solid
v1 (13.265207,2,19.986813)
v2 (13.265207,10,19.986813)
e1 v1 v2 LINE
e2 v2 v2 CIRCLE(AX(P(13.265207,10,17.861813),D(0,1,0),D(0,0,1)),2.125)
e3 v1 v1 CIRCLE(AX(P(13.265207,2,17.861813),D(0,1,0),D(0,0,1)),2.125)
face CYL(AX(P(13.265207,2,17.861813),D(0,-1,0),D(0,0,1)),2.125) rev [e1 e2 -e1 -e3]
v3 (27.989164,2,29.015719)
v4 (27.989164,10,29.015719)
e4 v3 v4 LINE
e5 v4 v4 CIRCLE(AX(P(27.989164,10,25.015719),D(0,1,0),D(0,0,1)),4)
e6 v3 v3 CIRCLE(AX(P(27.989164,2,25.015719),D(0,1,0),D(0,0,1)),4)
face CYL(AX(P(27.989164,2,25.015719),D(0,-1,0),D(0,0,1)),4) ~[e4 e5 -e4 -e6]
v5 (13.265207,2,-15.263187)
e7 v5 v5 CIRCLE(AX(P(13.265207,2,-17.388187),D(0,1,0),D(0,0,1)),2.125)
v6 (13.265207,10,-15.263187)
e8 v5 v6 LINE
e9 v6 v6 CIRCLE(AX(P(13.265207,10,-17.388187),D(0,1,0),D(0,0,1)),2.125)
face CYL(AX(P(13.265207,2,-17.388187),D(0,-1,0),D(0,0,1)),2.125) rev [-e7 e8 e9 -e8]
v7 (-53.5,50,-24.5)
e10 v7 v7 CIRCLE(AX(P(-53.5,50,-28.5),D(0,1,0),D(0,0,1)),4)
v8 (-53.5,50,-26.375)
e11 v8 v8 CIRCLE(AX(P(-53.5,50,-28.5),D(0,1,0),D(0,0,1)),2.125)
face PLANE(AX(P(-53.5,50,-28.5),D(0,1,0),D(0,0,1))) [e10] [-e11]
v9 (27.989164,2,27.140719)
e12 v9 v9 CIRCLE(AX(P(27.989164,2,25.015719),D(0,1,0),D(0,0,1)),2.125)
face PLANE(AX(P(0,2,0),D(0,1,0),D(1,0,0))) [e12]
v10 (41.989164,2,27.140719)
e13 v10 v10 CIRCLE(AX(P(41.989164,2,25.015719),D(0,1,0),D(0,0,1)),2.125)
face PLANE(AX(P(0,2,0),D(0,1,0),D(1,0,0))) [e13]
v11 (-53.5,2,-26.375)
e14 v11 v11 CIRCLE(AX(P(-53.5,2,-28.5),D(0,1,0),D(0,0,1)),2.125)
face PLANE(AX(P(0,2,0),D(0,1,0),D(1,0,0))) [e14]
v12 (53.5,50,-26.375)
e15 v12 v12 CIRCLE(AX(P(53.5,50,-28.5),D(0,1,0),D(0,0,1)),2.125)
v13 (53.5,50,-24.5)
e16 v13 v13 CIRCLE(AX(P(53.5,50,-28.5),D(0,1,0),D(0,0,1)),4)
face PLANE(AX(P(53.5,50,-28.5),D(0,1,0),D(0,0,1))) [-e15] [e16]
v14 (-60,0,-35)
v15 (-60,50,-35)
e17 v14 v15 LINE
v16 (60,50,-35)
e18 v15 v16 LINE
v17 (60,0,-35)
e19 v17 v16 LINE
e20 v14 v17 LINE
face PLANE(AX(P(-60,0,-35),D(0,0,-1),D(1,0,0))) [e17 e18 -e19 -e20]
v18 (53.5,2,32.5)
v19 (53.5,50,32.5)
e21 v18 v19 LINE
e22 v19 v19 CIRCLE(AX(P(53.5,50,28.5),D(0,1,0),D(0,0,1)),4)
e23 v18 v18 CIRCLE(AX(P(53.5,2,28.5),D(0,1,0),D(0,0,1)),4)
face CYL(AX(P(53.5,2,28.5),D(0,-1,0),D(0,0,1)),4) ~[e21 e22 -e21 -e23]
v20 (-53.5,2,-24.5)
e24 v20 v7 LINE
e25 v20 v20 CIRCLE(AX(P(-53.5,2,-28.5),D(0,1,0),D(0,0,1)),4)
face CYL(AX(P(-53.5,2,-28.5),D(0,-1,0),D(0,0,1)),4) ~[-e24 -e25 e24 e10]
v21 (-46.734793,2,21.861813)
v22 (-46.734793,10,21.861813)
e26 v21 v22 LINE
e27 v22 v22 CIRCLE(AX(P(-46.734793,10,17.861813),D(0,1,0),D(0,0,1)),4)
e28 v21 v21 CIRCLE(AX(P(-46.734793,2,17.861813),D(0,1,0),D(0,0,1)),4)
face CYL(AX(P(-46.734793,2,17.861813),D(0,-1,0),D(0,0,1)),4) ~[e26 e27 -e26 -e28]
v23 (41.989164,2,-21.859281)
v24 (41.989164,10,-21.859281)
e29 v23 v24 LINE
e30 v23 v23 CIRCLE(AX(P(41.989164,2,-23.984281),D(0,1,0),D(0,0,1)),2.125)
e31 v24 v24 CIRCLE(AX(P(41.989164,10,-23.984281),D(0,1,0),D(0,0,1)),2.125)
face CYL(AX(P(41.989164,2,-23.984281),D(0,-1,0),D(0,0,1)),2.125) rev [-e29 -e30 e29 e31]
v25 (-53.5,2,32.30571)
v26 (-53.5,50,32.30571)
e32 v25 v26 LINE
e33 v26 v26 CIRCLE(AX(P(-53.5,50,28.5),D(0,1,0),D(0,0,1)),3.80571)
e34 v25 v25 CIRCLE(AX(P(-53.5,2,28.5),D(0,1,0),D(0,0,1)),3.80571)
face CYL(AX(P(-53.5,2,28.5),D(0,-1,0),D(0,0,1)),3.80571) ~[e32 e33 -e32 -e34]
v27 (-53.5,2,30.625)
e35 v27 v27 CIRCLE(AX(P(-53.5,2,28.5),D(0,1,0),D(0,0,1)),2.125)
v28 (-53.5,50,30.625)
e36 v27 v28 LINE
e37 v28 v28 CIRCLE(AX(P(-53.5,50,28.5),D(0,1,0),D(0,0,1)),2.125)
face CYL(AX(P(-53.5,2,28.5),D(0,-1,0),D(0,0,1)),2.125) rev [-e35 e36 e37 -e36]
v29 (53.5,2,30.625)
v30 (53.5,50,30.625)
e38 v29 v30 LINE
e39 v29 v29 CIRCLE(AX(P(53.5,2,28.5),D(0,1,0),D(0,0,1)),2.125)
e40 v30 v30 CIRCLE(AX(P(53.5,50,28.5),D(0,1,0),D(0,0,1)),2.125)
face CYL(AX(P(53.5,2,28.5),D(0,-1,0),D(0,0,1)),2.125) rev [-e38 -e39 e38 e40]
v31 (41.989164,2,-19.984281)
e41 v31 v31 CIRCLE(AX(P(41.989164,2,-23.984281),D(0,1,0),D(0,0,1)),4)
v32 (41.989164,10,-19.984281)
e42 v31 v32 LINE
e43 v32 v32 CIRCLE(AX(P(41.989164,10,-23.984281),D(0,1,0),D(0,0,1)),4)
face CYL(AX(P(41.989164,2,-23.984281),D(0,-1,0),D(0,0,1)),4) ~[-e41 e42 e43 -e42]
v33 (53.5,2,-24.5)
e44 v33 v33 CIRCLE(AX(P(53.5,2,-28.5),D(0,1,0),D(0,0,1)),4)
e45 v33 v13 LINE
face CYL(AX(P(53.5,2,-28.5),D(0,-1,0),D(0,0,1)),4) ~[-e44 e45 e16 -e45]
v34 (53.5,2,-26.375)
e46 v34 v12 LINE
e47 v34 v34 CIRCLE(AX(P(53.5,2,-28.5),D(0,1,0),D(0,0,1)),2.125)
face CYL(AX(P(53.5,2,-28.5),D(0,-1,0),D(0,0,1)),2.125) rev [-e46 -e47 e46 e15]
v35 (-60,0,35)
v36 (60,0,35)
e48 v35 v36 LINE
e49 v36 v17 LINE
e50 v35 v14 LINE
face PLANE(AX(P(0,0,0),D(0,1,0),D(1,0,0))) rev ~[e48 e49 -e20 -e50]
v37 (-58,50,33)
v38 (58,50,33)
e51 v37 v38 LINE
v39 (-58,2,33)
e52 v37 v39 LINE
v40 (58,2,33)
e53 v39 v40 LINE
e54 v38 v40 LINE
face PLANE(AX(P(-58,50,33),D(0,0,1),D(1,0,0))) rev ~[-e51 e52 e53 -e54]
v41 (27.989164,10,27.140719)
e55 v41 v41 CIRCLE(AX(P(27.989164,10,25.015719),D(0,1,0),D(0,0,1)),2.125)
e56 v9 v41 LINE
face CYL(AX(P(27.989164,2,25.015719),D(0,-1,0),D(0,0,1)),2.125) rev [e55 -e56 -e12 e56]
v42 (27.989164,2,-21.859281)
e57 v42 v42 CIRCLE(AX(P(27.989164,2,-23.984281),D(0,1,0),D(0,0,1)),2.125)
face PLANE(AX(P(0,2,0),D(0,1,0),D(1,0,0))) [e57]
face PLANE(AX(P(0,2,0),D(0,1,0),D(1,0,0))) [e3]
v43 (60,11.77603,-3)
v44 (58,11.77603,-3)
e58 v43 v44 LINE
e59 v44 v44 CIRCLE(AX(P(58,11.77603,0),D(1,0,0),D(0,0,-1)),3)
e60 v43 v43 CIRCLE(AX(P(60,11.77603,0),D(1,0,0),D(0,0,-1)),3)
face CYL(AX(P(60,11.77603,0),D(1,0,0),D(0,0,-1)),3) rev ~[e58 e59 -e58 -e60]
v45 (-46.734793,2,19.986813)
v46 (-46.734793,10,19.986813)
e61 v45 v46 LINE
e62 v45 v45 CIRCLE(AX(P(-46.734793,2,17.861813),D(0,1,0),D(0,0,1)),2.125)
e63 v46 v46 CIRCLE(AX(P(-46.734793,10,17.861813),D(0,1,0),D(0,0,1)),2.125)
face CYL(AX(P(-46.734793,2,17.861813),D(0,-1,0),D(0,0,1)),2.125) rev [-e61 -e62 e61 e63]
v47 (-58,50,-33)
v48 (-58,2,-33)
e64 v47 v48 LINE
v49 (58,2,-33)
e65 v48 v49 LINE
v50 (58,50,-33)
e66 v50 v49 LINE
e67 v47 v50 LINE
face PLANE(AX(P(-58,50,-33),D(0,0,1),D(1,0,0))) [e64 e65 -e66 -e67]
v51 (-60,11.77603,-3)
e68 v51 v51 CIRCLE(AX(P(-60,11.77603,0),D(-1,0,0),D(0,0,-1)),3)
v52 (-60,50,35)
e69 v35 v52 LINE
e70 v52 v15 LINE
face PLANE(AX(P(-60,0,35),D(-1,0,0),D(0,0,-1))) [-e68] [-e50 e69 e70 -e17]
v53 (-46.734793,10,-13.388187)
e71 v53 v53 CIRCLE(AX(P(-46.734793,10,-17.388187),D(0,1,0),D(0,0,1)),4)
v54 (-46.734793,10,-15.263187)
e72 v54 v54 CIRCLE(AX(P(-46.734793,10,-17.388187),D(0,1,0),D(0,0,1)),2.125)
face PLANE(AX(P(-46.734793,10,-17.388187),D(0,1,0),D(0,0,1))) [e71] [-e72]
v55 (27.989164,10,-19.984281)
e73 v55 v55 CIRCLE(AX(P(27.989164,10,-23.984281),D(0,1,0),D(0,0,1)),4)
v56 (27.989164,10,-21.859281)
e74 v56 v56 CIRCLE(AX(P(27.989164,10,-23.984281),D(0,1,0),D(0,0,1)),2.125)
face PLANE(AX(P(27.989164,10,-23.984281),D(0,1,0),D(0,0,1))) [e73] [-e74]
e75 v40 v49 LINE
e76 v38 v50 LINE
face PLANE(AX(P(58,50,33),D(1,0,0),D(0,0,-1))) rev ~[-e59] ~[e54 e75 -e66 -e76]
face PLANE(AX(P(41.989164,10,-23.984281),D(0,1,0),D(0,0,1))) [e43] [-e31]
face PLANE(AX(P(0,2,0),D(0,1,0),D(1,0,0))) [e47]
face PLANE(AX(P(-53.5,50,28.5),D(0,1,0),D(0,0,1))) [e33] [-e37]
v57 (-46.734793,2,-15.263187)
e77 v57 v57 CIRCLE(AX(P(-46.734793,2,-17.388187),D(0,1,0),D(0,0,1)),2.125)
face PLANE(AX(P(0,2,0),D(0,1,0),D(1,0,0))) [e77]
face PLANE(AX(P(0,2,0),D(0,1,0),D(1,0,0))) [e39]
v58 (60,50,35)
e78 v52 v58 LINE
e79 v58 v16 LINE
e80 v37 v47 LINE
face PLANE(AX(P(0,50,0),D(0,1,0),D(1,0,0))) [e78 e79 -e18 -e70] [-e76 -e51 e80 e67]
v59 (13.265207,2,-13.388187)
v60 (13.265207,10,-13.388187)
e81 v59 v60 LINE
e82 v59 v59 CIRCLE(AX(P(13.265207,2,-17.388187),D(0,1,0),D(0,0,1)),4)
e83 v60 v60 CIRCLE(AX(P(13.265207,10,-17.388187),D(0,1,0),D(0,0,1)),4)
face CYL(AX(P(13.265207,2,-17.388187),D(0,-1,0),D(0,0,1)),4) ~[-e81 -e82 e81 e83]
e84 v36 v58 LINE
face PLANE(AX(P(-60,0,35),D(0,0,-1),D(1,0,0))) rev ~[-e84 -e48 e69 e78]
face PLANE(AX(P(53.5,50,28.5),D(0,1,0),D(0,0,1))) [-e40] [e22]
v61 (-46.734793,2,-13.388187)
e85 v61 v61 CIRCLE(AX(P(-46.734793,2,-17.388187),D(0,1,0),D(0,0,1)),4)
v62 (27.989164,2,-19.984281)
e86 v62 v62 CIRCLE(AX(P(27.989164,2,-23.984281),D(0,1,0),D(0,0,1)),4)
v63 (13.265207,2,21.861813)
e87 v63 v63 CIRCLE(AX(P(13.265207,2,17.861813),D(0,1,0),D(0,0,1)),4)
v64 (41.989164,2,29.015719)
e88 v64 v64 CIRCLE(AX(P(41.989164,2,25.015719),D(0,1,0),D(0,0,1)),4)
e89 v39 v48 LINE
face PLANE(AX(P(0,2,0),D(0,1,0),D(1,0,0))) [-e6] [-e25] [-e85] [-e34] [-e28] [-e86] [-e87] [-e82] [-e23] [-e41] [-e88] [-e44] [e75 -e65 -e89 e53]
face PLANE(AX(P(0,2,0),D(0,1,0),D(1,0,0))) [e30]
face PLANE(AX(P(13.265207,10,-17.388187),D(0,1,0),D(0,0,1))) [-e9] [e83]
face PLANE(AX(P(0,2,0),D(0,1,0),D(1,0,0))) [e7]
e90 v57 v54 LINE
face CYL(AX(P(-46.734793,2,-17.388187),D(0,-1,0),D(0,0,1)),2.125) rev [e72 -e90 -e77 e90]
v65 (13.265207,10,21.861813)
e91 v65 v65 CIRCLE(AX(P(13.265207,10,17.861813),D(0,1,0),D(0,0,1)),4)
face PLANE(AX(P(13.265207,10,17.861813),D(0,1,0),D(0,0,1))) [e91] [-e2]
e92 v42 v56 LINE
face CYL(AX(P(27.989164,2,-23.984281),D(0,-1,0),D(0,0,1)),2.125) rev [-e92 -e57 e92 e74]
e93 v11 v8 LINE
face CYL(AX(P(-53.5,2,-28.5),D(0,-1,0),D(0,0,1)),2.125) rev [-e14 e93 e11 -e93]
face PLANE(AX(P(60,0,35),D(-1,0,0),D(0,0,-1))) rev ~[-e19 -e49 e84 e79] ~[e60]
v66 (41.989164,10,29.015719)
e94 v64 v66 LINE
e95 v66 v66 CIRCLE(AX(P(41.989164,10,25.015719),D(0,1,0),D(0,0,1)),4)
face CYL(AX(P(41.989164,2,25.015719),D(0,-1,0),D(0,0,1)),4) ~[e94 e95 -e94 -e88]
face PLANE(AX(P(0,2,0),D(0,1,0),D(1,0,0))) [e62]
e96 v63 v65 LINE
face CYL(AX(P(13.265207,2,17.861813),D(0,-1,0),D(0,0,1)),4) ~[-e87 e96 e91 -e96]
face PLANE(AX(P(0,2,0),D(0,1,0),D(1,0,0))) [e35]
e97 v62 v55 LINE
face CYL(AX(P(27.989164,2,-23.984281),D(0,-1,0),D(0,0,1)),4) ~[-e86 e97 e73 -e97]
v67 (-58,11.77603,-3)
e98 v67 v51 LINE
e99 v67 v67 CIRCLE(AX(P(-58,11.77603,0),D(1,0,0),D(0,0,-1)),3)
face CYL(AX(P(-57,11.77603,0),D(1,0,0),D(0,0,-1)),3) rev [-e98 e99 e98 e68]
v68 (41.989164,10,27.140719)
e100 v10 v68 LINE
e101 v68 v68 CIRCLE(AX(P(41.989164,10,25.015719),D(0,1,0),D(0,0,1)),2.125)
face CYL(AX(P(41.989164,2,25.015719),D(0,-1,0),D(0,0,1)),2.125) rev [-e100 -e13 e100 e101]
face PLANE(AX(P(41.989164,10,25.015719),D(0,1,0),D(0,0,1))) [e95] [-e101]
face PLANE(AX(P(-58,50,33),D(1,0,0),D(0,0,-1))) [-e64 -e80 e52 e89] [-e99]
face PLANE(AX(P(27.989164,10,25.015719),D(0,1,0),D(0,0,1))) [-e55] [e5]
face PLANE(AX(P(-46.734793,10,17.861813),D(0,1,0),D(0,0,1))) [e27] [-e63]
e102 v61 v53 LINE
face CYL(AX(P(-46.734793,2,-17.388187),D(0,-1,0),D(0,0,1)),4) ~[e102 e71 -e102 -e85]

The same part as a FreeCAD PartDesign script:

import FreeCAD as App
import Part
import Sketcher
from FreeCAD import Vector
Q = App.Units.Quantity

doc = App.newDocument("Part")
body = doc.addObject("PartDesign::Body", "Body")

sketch1 = body.newObject("Sketcher::SketchObject", "Sketch")
sketch1.AttachmentSupport = (doc.getObject("XZ_Plane"), [""])
sketch1.MapMode = "FlatFace"
sketch1.addGeometry([
    Part.LineSegment(Vector(-60, -35, 0), Vector(-60, 35, 0)),
    Part.LineSegment(Vector(-60, 35, 0), Vector(60, 35, 0)),
    Part.LineSegment(Vector(60, 35, 0), Vector(60, -35, 0)),
    Part.LineSegment(Vector(60, -35, 0), Vector(-60, -35, 0)),
], False)
sketch1.addConstraint([
    Sketcher.Constraint("Coincident", 0, 2, 1, 1),
    Sketcher.Constraint("Coincident", 1, 2, 2, 1),
    Sketcher.Constraint("Coincident", 2, 2, 3, 1),
    Sketcher.Constraint("Coincident", 3, 2, 0, 1),
    Sketcher.Constraint("Vertical", 0),
    Sketcher.Constraint("Horizontal", 1),
    Sketcher.Constraint("Vertical", 2),
    Sketcher.Constraint("Horizontal", 3),
    Sketcher.Constraint("Symmetric", 0, 2, 2, 2, -1, 1),
    Sketcher.Constraint("DistanceX", 1, 1, 1, 2, Q("120 mm")),
    Sketcher.Constraint("DistanceY", 0, 1, 0, 2, Q("70 mm")),
])
pad1 = body.newObject("PartDesign::Pad", "Pad")
pad1.Profile = sketch1
pad1.Length = 50
pad1.Reversed = True

sketch2 = body.newObject("Sketcher::SketchObject", "Sketch001")
sketch2.AttachmentSupport = (doc.getObject("XZ_Plane"), [""])
sketch2.MapMode = "FlatFace"
sketch2.AttachmentOffset = App.Placement(Vector(0, 0, -50), App.Rotation())
sketch2.addGeometry([
    Part.LineSegment(Vector(-58, -33, 0), Vector(-58, 33, 0)),
    Part.LineSegment(Vector(-58, 33, 0), Vector(58, 33, 0)),
    Part.LineSegment(Vector(58, 33, 0), Vector(58, -33, 0)),
    Part.LineSegment(Vector(58, -33, 0), Vector(-58, -33, 0)),
], False)
sketch2.addConstraint([
    Sketcher.Constraint("Coincident", 0, 2, 1, 1),
    Sketcher.Constraint("Coincident", 1, 2, 2, 1),
    Sketcher.Constraint("Coincident", 2, 2, 3, 1),
    Sketcher.Constraint("Coincident", 3, 2, 0, 1),
    Sketcher.Constraint("Vertical", 0),
    Sketcher.Constraint("Horizontal", 1),
    Sketcher.Constraint("Vertical", 2),
    Sketcher.Constraint("Horizontal", 3),
    Sketcher.Constraint("Symmetric", 0, 2, 2, 2, -1, 1),
    Sketcher.Constraint("DistanceX", 1, 1, 1, 2, Q("116 mm")),
    Sketcher.Constraint("DistanceY", 0, 1, 0, 2, Q("66 mm")),
])
pocket1 = body.newObject("PartDesign::Pocket", "Pocket")
pocket1.Profile = sketch2
pocket1.Length = 48
pocket1.Reversed = True

sketch3 = body.newObject("Sketcher::SketchObject", "Sketch002")
sketch3.AttachmentSupport = (doc.getObject("XZ_Plane"), [""])
sketch3.MapMode = "FlatFace"
sketch3.AttachmentOffset = App.Placement(Vector(0, 0, -2), App.Rotation())
sketch3.addGeometry([
    Part.Circle(Vector(-53.5, -28.5, 0), Vector(0, 0, 1), 4),
    Part.Circle(Vector(-53.5, -28.5, 0), Vector(0, 0, 1), 2.1),
    Part.Circle(Vector(-53.5, 28.5, 0), Vector(0, 0, 1), 3.8),
    Part.Circle(Vector(-53.5, 28.5, 0), Vector(0, 0, 1), 2.1),
    Part.Circle(Vector(53.5, 28.5, 0), Vector(0, 0, 1), 4),
    Part.Circle(Vector(53.5, 28.5, 0), Vector(0, 0, 1), 2.1),
    Part.Circle(Vector(53.5, -28.5, 0), Vector(0, 0, 1), 4),
    Part.Circle(Vector(53.5, -28.5, 0), Vector(0, 0, 1), 2.1),
], False)
sketch3.addConstraint([
    Sketcher.Constraint("Coincident", 1, 3, 0, 3),
    Sketcher.Constraint("Coincident", 3, 3, 2, 3),
    Sketcher.Constraint("Coincident", 5, 3, 4, 3),
    Sketcher.Constraint("Coincident", 7, 3, 6, 3),
    Sketcher.Constraint("Equal", 1, 3),
    Sketcher.Constraint("Equal", 0, 4),
    Sketcher.Constraint("Equal", 3, 5),
    Sketcher.Constraint("Equal", 4, 6),
    Sketcher.Constraint("Equal", 5, 7),
    Sketcher.Constraint("Symmetric", 0, 3, 4, 3, -1, 1),
    Sketcher.Constraint("Symmetric", 2, 3, 6, 3, -1, 1),
    Sketcher.Constraint("Symmetric", 2, 3, 4, 3, -2),
    Sketcher.Constraint("Diameter", 0, Q("8 mm")),
    Sketcher.Constraint("Diameter", 1, Q("4.25 mm")),
    Sketcher.Constraint("DistanceY", 0, 3, 2, 3, Q("57 mm")),
    Sketcher.Constraint("DistanceX", 2, 3, 4, 3, Q("107 mm")),
    Sketcher.Constraint("Diameter", 2, Q("7.611421 mm")),
])
pad2 = body.newObject("PartDesign::Pad", "Pad001")
pad2.Profile = sketch3
pad2.Length = 48
pad2.Reversed = True

sketch4 = body.newObject("Sketcher::SketchObject", "Sketch003")
sketch4.AttachmentSupport = (doc.getObject("XZ_Plane"), [""])
sketch4.MapMode = "FlatFace"
sketch4.AttachmentOffset = App.Placement(Vector(0, 0, -2), App.Rotation())
sketch4.addGeometry([
    Part.Circle(Vector(42, -24, 0), Vector(0, 0, 1), 4),
    Part.Circle(Vector(42, -24, 0), Vector(0, 0, 1), 2.1),
    Part.Circle(Vector(28, -24, 0), Vector(0, 0, 1), 4),
    Part.Circle(Vector(28, -24, 0), Vector(0, 0, 1), 2.1),
    Part.Circle(Vector(28, 25, 0), Vector(0, 0, 1), 4),
    Part.Circle(Vector(28, 25, 0), Vector(0, 0, 1), 2.1),
    Part.Circle(Vector(42, 25, 0), Vector(0, 0, 1), 4),
    Part.Circle(Vector(42, 25, 0), Vector(0, 0, 1), 2.1),
    Part.Circle(Vector(13.3, 17.9, 0), Vector(0, 0, 1), 4),
    Part.Circle(Vector(13.3, 17.9, 0), Vector(0, 0, 1), 2.1),
    Part.Circle(Vector(13.3, -17.4, 0), Vector(0, 0, 1), 4),
    Part.Circle(Vector(13.3, -17.4, 0), Vector(0, 0, 1), 2.1),
    Part.Circle(Vector(-46.7, -17.4, 0), Vector(0, 0, 1), 4),
    Part.Circle(Vector(-46.7, -17.4, 0), Vector(0, 0, 1), 2.1),
    Part.Circle(Vector(-46.7, 17.9, 0), Vector(0, 0, 1), 4),
    Part.Circle(Vector(-46.7, 17.9, 0), Vector(0, 0, 1), 2.1),
], False)
sketch4.addConstraint([
    Sketcher.Constraint("Coincident", 1, 3, 0, 3),
    Sketcher.Constraint("Coincident", 3, 3, 2, 3),
    Sketcher.Constraint("Coincident", 5, 3, 4, 3),
    Sketcher.Constraint("Coincident", 7, 3, 6, 3),
    Sketcher.Constraint("Coincident", 9, 3, 8, 3),
    Sketcher.Constraint("Coincident", 11, 3, 10, 3),
    Sketcher.Constraint("Coincident", 13, 3, 12, 3),
    Sketcher.Constraint("Coincident", 15, 3, 14, 3),
    Sketcher.Constraint("Equal", 0, 2),
    Sketcher.Constraint("Equal", 1, 3),
    Sketcher.Constraint("Equal", 2, 4),
    Sketcher.Constraint("Equal", 3, 5),
    Sketcher.Constraint("Equal", 4, 6),
    Sketcher.Constraint("Equal", 5, 7),
    Sketcher.Constraint("Equal", 6, 8),
    Sketcher.Constraint("Equal", 7, 9),
    Sketcher.Constraint("Equal", 8, 10),
    Sketcher.Constraint("Equal", 9, 11),
    Sketcher.Constraint("Equal", 10, 12),
    Sketcher.Constraint("Equal", 11, 13),
    Sketcher.Constraint("Equal", 12, 14),
    Sketcher.Constraint("Equal", 13, 15),
    Sketcher.Constraint("Horizontal", 1, 3, 2, 3),
    Sketcher.Constraint("Horizontal", 5, 3, 6, 3),
    Sketcher.Constraint("Horizontal", 11, 3, 12, 3),
    Sketcher.Constraint("Horizontal", 9, 3, 14, 3),
    Sketcher.Constraint("Vertical", 3, 3, 4, 3),
    Sketcher.Constraint("Vertical", 1, 3, 6, 3),
    Sketcher.Constraint("Vertical", 9, 3, 10, 3),
    Sketcher.Constraint("Vertical", 13, 3, 14, 3),
    Sketcher.Constraint("Diameter", 0, Q("8 mm")),
    Sketcher.Constraint("Diameter", 1, Q("4.25 mm")),
    Sketcher.Constraint("DistanceX", 2, 3, 0, 3, Q("14 mm")),
    Sketcher.Constraint("DistanceY", 2, 3, 4, 3, Q("49 mm")),
    Sketcher.Constraint("DistanceX", 12, 3, 10, 3, Q("60 mm")),
    Sketcher.Constraint("DistanceY", 10, 3, 8, 3, Q("35.25 mm")),
    Sketcher.Constraint("DistanceY", 0, 3, -1, 1, Q("23.984281 mm")),
    Sketcher.Constraint("DistanceX", -1, 1, 0, 3, Q("41.989164 mm")),
    Sketcher.Constraint("DistanceX", -1, 1, 8, 3, Q("13.265207 mm")),
    Sketcher.Constraint("DistanceY", -1, 1, 8, 3, Q("17.861813 mm")),
])
pad3 = body.newObject("PartDesign::Pad", "Pad002")
pad3.Profile = sketch4
pad3.Length = 8
pad3.Reversed = True

sketch5 = body.newObject("Sketcher::SketchObject", "Sketch004")
sketch5.AttachmentSupport = (doc.getObject("YZ_Plane"), [""])
sketch5.MapMode = "FlatFace"
sketch5.AttachmentOffset = App.Placement(Vector(0, 0, 60), App.Rotation())
sketch5.addGeometry(Part.Circle(Vector(11.8, 0, 0), Vector(0, 0, 1), 3), False)
sketch5.addConstraint([
    Sketcher.Constraint("PointOnObject", 0, 3, -1),
    Sketcher.Constraint("Diameter", 0, Q("6 mm")),
    Sketcher.Constraint("DistanceX", -1, 1, 0, 3, Q("11.77603 mm")),
])
pocket2 = body.newObject("PartDesign::Pocket", "Pocket001")
pocket2.Profile = sketch5
pocket2.Length = 3

sketch6 = body.newObject("Sketcher::SketchObject", "Sketch005")
sketch6.AttachmentSupport = (doc.getObject("YZ_Plane"), [""])
sketch6.MapMode = "FlatFace"
sketch6.AttachmentOffset = App.Placement(Vector(0, 0, -57), App.Rotation())
sketch6.addGeometry(Part.Circle(Vector(11.8, 0, 0), Vector(0, 0, 1), 3), False)
sketch6.addConstraint([
    Sketcher.Constraint("PointOnObject", 0, 3, -1),
    Sketcher.Constraint("Diameter", 0, Q("6 mm")),
    Sketcher.Constraint("DistanceX", -1, 1, 0, 3, Q("11.77603 mm")),
])
pocket3 = body.newObject("PartDesign::Pocket", "Pocket002")
pocket3.Profile = sketch6
pocket3.Length = 3

doc.recompute()
